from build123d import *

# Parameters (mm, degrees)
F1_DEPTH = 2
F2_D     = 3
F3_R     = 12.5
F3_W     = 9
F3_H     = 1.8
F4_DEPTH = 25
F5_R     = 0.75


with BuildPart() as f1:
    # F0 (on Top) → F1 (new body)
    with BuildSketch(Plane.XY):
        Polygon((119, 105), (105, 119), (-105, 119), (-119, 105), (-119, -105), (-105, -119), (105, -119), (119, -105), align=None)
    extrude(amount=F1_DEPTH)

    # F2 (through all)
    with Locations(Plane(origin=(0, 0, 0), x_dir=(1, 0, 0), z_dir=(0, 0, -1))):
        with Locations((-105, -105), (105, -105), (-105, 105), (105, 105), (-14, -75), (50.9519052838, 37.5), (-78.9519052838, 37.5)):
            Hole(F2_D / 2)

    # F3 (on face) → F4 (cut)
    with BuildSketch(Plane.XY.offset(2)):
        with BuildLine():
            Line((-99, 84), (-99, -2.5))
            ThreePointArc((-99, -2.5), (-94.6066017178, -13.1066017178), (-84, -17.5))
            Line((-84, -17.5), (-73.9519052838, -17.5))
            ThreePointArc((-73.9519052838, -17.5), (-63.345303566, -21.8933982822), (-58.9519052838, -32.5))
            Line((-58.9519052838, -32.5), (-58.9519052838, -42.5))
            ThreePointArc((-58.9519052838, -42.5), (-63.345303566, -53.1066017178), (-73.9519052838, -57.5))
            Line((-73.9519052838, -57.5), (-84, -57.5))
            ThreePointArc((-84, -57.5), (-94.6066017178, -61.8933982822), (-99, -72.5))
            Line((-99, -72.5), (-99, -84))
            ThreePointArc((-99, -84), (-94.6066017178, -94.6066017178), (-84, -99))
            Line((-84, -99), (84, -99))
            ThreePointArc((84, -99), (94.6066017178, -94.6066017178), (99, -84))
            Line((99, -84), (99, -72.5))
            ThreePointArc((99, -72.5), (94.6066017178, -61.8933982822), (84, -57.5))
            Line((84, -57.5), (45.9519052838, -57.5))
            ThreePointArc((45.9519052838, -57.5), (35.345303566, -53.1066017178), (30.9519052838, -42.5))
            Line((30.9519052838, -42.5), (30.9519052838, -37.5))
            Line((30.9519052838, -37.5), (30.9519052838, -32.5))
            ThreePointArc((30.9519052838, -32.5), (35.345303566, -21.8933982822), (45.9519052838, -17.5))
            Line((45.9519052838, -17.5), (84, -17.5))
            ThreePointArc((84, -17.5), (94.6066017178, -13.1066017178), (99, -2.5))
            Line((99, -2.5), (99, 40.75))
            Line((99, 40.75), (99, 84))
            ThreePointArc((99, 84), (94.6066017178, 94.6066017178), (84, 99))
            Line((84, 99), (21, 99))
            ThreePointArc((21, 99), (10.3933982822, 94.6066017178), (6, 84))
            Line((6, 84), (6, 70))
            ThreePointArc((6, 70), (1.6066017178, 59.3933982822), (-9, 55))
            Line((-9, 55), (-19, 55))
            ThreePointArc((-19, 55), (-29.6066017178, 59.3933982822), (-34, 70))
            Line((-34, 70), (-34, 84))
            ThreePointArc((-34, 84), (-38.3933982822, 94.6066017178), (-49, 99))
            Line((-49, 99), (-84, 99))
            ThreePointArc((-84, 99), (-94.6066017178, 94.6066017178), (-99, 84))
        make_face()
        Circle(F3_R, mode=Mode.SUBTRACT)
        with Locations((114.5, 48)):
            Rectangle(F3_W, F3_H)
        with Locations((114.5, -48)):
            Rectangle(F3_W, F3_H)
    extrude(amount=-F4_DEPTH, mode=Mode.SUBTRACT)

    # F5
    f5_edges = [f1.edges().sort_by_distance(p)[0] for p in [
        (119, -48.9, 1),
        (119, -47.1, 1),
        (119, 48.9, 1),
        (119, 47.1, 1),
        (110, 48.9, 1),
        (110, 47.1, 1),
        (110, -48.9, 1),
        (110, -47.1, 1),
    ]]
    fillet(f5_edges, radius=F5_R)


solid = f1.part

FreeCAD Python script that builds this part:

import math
import FreeCAD as App
import Part
import Sketcher
Q = App.Units.Quantity


def edges_at(feature, points):
    """Names of the edges that pass closest to the given points."""
    edges = feature.Shape.Edges
    near = lambda p: min(range(len(edges)), key=lambda i: edges[i].distToShape(Part.Vertex(*p))[0])
    return sorted({f"Edge{near(p) + 1}" for p in points})


def add_polygon(sketch, points):
    """Adds a closed chain of lines whose ends are joined by coincident constraints."""
    first, n = sketch.GeometryCount, len(points)
    for a, b in zip(points, points[1:] + points[:1]):
        sketch.addGeometry(Part.LineSegment(App.Vector(*a, 0), App.Vector(*b, 0)), False)
    for i in range(n):
        sketch.addConstraint(Sketcher.Constraint("Coincident", first + i, 2, first + (i + 1) % n, 1))

doc = App.newDocument("Part")
params = doc.addObject("Spreadsheet::Sheet", "Params")
for row, (alias, value) in enumerate([
    ("sketch1_width", "210 mm"),
    ("pad1_length", "2 mm"),
    ("sketch2_diameter", "3 mm"),
    ("hole_diameter", "3 mm"),
    ("sketch3_diameter", "25 mm"),
    ("sketch3_radius", "15 mm"),
    ("sketch3_width", "168 mm"),
    ("sketch3_width2", "63 mm"),
    ("sketch3_width3", "10 mm"),
    ("pocket1_length", "25 mm"),
    ("fillet_radius", "0.75 mm"),
], start=1):
    params.set(f"A{row}", alias)
    params.set(f"B{row}", "=" + value)
    params.setAlias(f"B{row}", alias)

body = doc.addObject("PartDesign::Body", "Body")
body.AllowCompound = True

sketch1 = doc.addObject("Sketcher::SketchObject", "Sketch")
body.addObject(sketch1)
sketch1.AttachmentSupport = (doc.XY_Plane, [""])
sketch1.MapMode = "FlatFace"
add_polygon(sketch1, [(119, 105), (105, 119), (-105, 119), (-119, 105), (-119, -105), (-105, -119), (105, -119), (119, -105)])
sketch1.addConstraint([
    Sketcher.Constraint("Horizontal", 1),
    Sketcher.Constraint("Vertical", 3),
    Sketcher.Constraint("Horizontal", 5),
    Sketcher.Constraint("Vertical", 7),
    Sketcher.Constraint("Symmetric", 0, 2, 4, 2, -1, 1),
    Sketcher.Constraint("Symmetric", 2, 2, 6, 2, -1, 1),
    Sketcher.Constraint("Perpendicular", 0, 2),
    Sketcher.Constraint("Perpendicular", 2, 4),
    Sketcher.Constraint("Perpendicular", 4, 6),
    Sketcher.Constraint("Horizontal", 3, 2, 6, 2),
    Sketcher.Constraint("Vertical", 1, 2, 4, 2),
    Sketcher.Constraint("Equal", 5, 3),
    Sketcher.Constraint("DistanceX", 1, 2, 1, 1, Q("210 mm")),
    Sketcher.Constraint("DistanceY", -1, 1, 0, 2, Q("119 mm")),
])
sketch1.setExpression("Constraints[20]", "Params.sketch1_width")
pad1 = doc.addObject("PartDesign::Pad", "Pad")
body.addObject(pad1)
pad1.Profile = sketch1
pad1.setExpression("Length", "Params.pad1_length")

sketch2 = doc.addObject("Sketcher::SketchObject", "Sketch001")
body.addObject(sketch2)
sketch2.AttachmentSupport = (doc.XY_Plane, [""])
sketch2.MapMode = "FlatFace"
sketch2.addGeometry([
    Part.Circle(App.Vector(-105, 105, 0), App.Vector(0, 0, 1), 1.5),
    Part.Circle(App.Vector(105, 105, 0), App.Vector(0, 0, 1), 1.5),
    Part.Circle(App.Vector(-105, -105, 0), App.Vector(0, 0, 1), 1.5),
    Part.Circle(App.Vector(105, -105, 0), App.Vector(0, 0, 1), 1.5),
    Part.Circle(App.Vector(-14, 75, 0), App.Vector(0, 0, 1), 1.5),
    Part.Circle(App.Vector(51, -37.5, 0), App.Vector(0, 0, 1), 1.5),
    Part.Circle(App.Vector(-79, -37.5, 0), App.Vector(0, 0, 1), 1.5),
], False)
sketch2.addConstraint([
    Sketcher.Constraint("Equal", 0, 1),
    Sketcher.Constraint("Equal", 1, 2),
    Sketcher.Constraint("Equal", 2, 3),
    Sketcher.Constraint("Equal", 3, 4),
    Sketcher.Constraint("Equal", 4, 5),
    Sketcher.Constraint("Equal", 5, 6),
    Sketcher.Constraint("Symmetric", 1, 3, 2, 3, -1, 1),
    Sketcher.Constraint("Symmetric", 0, 3, 3, 3, -1, 1),
    Sketcher.Constraint("Symmetric", 0, 3, 1, 3, -2),
    Sketcher.Constraint("Horizontal", 5, 3, 6, 3),
    Sketcher.Constraint("Diameter", 0, Q("3 mm")),
    Sketcher.Constraint("DistanceX", 0, 3, -1, 1, Q("105 mm")),
    Sketcher.Constraint("DistanceY", -1, 1, 0, 3, Q("105 mm")),
    Sketcher.Constraint("DistanceX", 4, 3, -1, 1, Q("14 mm")),
    Sketcher.Constraint("DistanceY", -1, 1, 4, 3, Q("75 mm")),
    Sketcher.Constraint("DistanceY", 5, 3, -1, 1, Q("37.5 mm")),
    Sketcher.Constraint("DistanceX", 6, 3, 5, 3, Q("129.903811 mm")),
    Sketcher.Constraint("DistanceX", -1, 1, 5, 3, Q("50.951905 mm")),
])
sketch2.setExpression("Constraints[10]", "Params.sketch2_diameter")
doc.recompute()
hole = doc.addObject("PartDesign::Hole", "Hole")
body.addObject(hole)
hole.Profile = sketch2
hole.ThreadType = "None"
hole.setExpression("Diameter", "Params.hole_diameter")
hole.DepthType = "ThroughAll"
hole.Reversed = True

sketch3 = doc.addObject("Sketcher::SketchObject", "Sketch002")
body.addObject(sketch3)
sketch3.AttachmentSupport = (doc.XY_Plane, [""])
sketch3.MapMode = "FlatFace"
sketch3.AttachmentOffset = App.Placement(App.Vector(0, 0, 2), App.Rotation())
sketch3.addGeometry(Part.LineSegment(App.Vector(-99, 84, 0), App.Vector(-99, -2.5, 0)), False)
sketch3.addGeometry(Part.ArcOfCircle(Part.Circle(App.Vector(-84, -2.5, 0), App.Vector(0, 0, 1), 15), math.radians(180), math.radians(270)), False)
sketch3.addGeometry(Part.LineSegment(App.Vector(-84, -17.5, 0), App.Vector(-74, -17.5, 0)), False)
sketch3.addGeometry(Part.ArcOfCircle(Part.Circle(App.Vector(-74, -32.5, 0), App.Vector(0, 0, 1), 15), math.radians(0), math.radians(90)), False)
sketch3.addGeometry(Part.LineSegment(App.Vector(-59, -32.5, 0), App.Vector(-59, -42.5, 0)), False)
sketch3.addGeometry(Part.ArcOfCircle(Part.Circle(App.Vector(-74, -42.5, 0), App.Vector(0, 0, 1), 15), math.radians(-90), math.radians(0)), False)
sketch3.addGeometry(Part.LineSegment(App.Vector(-74, -57.5, 0), App.Vector(-84, -57.5, 0)), False)
sketch3.addGeometry(Part.ArcOfCircle(Part.Circle(App.Vector(-84, -72.5, 0), App.Vector(0, 0, 1), 15), math.radians(90), math.radians(180)), False)
sketch3.addGeometry(Part.LineSegment(App.Vector(-99, -72.5, 0), App.Vector(-99, -84, 0)), False)
sketch3.addGeometry(Part.ArcOfCircle(Part.Circle(App.Vector(-84, -84, 0), App.Vector(0, 0, 1), 15), math.radians(180), math.radians(270)), False)
sketch3.addGeometry(Part.LineSegment(App.Vector(-84, -99, 0), App.Vector(84, -99, 0)), False)
sketch3.addGeometry(Part.ArcOfCircle(Part.Circle(App.Vector(84, -84, 0), App.Vector(0, 0, 1), 15), math.radians(-90), math.radians(0)), False)
sketch3.addGeometry(Part.LineSegment(App.Vector(99, -84, 0), App.Vector(99, -72.5, 0)), False)
sketch3.addGeometry(Part.ArcOfCircle(Part.Circle(App.Vector(84, -72.5, 0), App.Vector(0, 0, 1), 15), math.radians(0), math.radians(90)), False)
sketch3.addGeometry(Part.LineSegment(App.Vector(84, -57.5, 0), App.Vector(46, -57.5, 0)), False)
sketch3.addGeometry(Part.ArcOfCircle(Part.Circle(App.Vector(46, -42.5, 0), App.Vector(0, 0, 1), 15), math.radians(180), math.radians(270)), False)
sketch3.addGeometry(Part.LineSegment(App.Vector(31, -42.5, 0), App.Vector(31, -32.5, 0)), False)
sketch3.addGeometry(Part.ArcOfCircle(Part.Circle(App.Vector(46, -32.5, 0), App.Vector(0, 0, 1), 15), math.radians(90), math.radians(180)), False)
sketch3.addGeometry(Part.LineSegment(App.Vector(46, -17.5, 0), App.Vector(84, -17.5, 0)), False)
sketch3.addGeometry(Part.ArcOfCircle(Part.Circle(App.Vector(84, -2.5, 0), App.Vector(0, 0, 1), 15), math.radians(-90), math.radians(0)), False)
sketch3.addGeometry(Part.LineSegment(App.Vector(99, -2.5, 0), App.Vector(99, 84, 0)), False)
sketch3.addGeometry(Part.ArcOfCircle(Part.Circle(App.Vector(84, 84, 0), App.Vector(0, 0, 1), 15), math.radians(0), math.radians(90)), False)
sketch3.addGeometry(Part.LineSegment(App.Vector(84, 99, 0), App.Vector(21, 99, 0)), False)
sketch3.addGeometry(Part.ArcOfCircle(Part.Circle(App.Vector(21, 84, 0), App.Vector(0, 0, 1), 15), math.radians(90), math.radians(180)), False)
sketch3.addGeometry(Part.LineSegment(App.Vector(6, 84, 0), App.Vector(6, 70, 0)), False)
sketch3.addGeometry(Part.ArcOfCircle(Part.Circle(App.Vector(-9, 70, 0), App.Vector(0, 0, 1), 15), math.radians(-90), math.radians(0)), False)
sketch3.addGeometry(Part.LineSegment(App.Vector(-9, 55, 0), App.Vector(-19, 55, 0)), False)
sketch3.addGeometry(Part.ArcOfCircle(Part.Circle(App.Vector(-19, 70, 0), App.Vector(0, 0, 1), 15), math.radians(180), math.radians(270)), False)
sketch3.addGeometry(Part.LineSegment(App.Vector(-34, 70, 0), App.Vector(-34, 84, 0)), False)
sketch3.addGeometry(Part.ArcOfCircle(Part.Circle(App.Vector(-49, 84, 0), App.Vector(0, 0, 1), 15), math.radians(0), math.radians(90)), False)
sketch3.addGeometry(Part.LineSegment(App.Vector(-49, 99, 0), App.Vector(-84, 99, 0)), False)
sketch3.addGeometry(Part.ArcOfCircle(Part.Circle(App.Vector(-84, 84, 0), App.Vector(0, 0, 1), 15), math.radians(90), math.radians(180)), False)
sketch3.addGeometry(Part.Circle(App.Vector(0, 0, 0), App.Vector(0, 0, 1), 12.5), False)
add_polygon(sketch3, [(110, 48.9), (110, 47.1), (119, 47.1), (119, 48.9)])
add_polygon(sketch3, [(110, -47.1), (110, -48.9), (119, -48.9), (119, -47.1)])
sketch3.addConstraint([
    Sketcher.Constraint("Tangent", 0, 2, 1, 1),
    Sketcher.Constraint("Tangent", 1, 2, 2, 1),
    Sketcher.Constraint("Tangent", 2, 2, 3, 2),
    Sketcher.Constraint("Tangent", 3, 1, 4, 1),
    Sketcher.Constraint("Tangent", 4, 2, 5, 2),
    Sketcher.Constraint("Tangent", 5, 1, 6, 1),
    Sketcher.Constraint("Tangent", 6, 2, 7, 1),
    Sketcher.Constraint("Tangent", 7, 2, 8, 1),
    Sketcher.Constraint("Tangent", 8, 2, 9, 1),
    Sketcher.Constraint("Tangent", 9, 2, 10, 1),
    Sketcher.Constraint("Tangent", 10, 2, 11, 1),
    Sketcher.Constraint("Tangent", 11, 2, 12, 1),
    Sketcher.Constraint("Tangent", 12, 2, 13, 1),
    Sketcher.Constraint("Tangent", 13, 2, 14, 1),
    Sketcher.Constraint("Tangent", 14, 2, 15, 2),
    Sketcher.Constraint("Tangent", 15, 1, 16, 1),
    Sketcher.Constraint("Tangent", 16, 2, 17, 2),
    Sketcher.Constraint("Tangent", 17, 1, 18, 1),
    Sketcher.Constraint("Tangent", 18, 2, 19, 1),
    Sketcher.Constraint("Tangent", 19, 2, 20, 1),
    Sketcher.Constraint("Tangent", 20, 2, 21, 1),
    Sketcher.Constraint("Tangent", 21, 2, 22, 1),
    Sketcher.Constraint("Tangent", 22, 2, 23, 1),
    Sketcher.Constraint("Tangent", 23, 2, 24, 1),
    Sketcher.Constraint("Tangent", 24, 2, 25, 2),
    Sketcher.Constraint("Tangent", 25, 1, 26, 1),
    Sketcher.Constraint("Tangent", 26, 2, 27, 2),
    Sketcher.Constraint("Tangent", 27, 1, 28, 1),
    Sketcher.Constraint("Tangent", 28, 2, 29, 1),
    Sketcher.Constraint("Tangent", 29, 2, 30, 1),
    Sketcher.Constraint("Tangent", 30, 2, 31, 1),
    Sketcher.Constraint("Tangent", 31, 2, 0, 1),
    Sketcher.Constraint("Vertical", 0),
    Sketcher.Constraint("Horizontal", 2),
    Sketcher.Constraint("Vertical", 4),
    Sketcher.Constraint("Horizontal", 6),
    Sketcher.Constraint("Vertical", 8),
    Sketcher.Constraint("Horizontal", 10),
    Sketcher.Constraint("Vertical", 12),
    Sketcher.Constraint("Horizontal", 14),
    Sketcher.Constraint("Vertical", 16),
    Sketcher.Constraint("Horizontal", 18),
    Sketcher.Constraint("Vertical", 20),
    Sketcher.Constraint("Horizontal", 22),
    Sketcher.Constraint("Vertical", 24),
    Sketcher.Constraint("Horizontal", 26),
    Sketcher.Constraint("Vertical", 28),
    Sketcher.Constraint("Horizontal", 30),
    Sketcher.Constraint("Vertical", 33),
    Sketcher.Constraint("Horizontal", 34),
    Sketcher.Constraint("Vertical", 35),
    Sketcher.Constraint("Horizontal", 36),
    Sketcher.Constraint("Vertical", 37),
    Sketcher.Constraint("Horizontal", 38),
    Sketcher.Constraint("Vertical", 39),
    Sketcher.Constraint("Horizontal", 40),
    Sketcher.Constraint("Coincident", 32, 3, -1, 1),
    Sketcher.Constraint("Equal", 1, 3),
    Sketcher.Constraint("Equal", 3, 5),
    Sketcher.Constraint("Equal", 5, 7),
    Sketcher.Constraint("Equal", 7, 9),
    Sketcher.Constraint("Equal", 9, 11),
    Sketcher.Constraint("Equal", 11, 13),
    Sketcher.Constraint("Equal", 13, 15),
    Sketcher.Constraint("Equal", 15, 17),
    Sketcher.Constraint("Equal", 17, 19),
    Sketcher.Constraint("Equal", 19, 21),
    Sketcher.Constraint("Equal", 21, 23),
    Sketcher.Constraint("Equal", 23, 25),
    Sketcher.Constraint("Equal", 25, 27),
    Sketcher.Constraint("Equal", 27, 29),
    Sketcher.Constraint("Equal", 29, 31),
    Sketcher.Constraint("Symmetric", 9, 3, 21, 3, -1, 1),
    Sketcher.Constraint("Symmetric", 11, 3, 31, 3, -1, 1),
    Sketcher.Constraint("Symmetric", 7, 3, 13, 3, -2),
    Sketcher.Constraint("Symmetric", 36, 2, 37, 2, -1),
    Sketcher.Constraint("Symmetric", 34, 2, 39, 2, -1),
    Sketcher.Constraint("Horizontal", 3, 3, 17, 3),
    Sketcher.Constraint("Equal", 26, 4),
    Sketcher.Constraint("Diameter", 32, Q("25 mm")),
    Sketcher.Constraint("Radius", 1, Q("15 mm")),
    Sketcher.Constraint("DistanceX", 10, 1, 10, 2, Q("168 mm")),
    Sketcher.Constraint("DistanceX", 22, 2, 22, 1, Q("63 mm")),
    Sketcher.Constraint("DistanceX", 26, 2, 26, 1, Q("10 mm")),
    Sketcher.Constraint("DistanceX", 34, 1, 34, 2, Q("9 mm")),
    Sketcher.Constraint("DistanceY", 24, 2, 24, 1, Q("14 mm")),
    Sketcher.Constraint("DistanceY", 0, 2, 0, 1, Q("86.5 mm")),
    Sketcher.Constraint("DistanceY", 8, 2, 8, 1, Q("11.5 mm")),
    Sketcher.Constraint("DistanceY", 33, 2, 33, 1, Q("1.8 mm")),
    Sketcher.Constraint("DistanceX", -1, 1, 33, 2, Q("110 mm")),
    Sketcher.Constraint("DistanceY", -1, 1, 33, 2, Q("47.1 mm")),
    Sketcher.Constraint("DistanceX", 2, 1, 2, 2, Q("10.048095 mm")),
    Sketcher.Constraint("DistanceX", 14, 2, 14, 1, Q("38.048095 mm")),
])
sketch3.setExpression("Constraints[87]", "Params.sketch3_diameter")
sketch3.setExpression("Constraints[88]", "Params.sketch3_radius")
sketch3.setExpression("Constraints[89]", "Params.sketch3_width")
sketch3.setExpression("Constraints[90]", "Params.sketch3_width2")
sketch3.setExpression("Constraints[91]", "Params.sketch3_width3")
pocket1 = doc.addObject("PartDesign::Pocket", "Pocket")
body.addObject(pocket1)
pocket1.Profile = sketch3
pocket1.setExpression("Length", "Params.pocket1_length")
doc.recompute()

fillet = doc.addObject("PartDesign::Fillet", "Fillet")
body.addObject(fillet)
fillet.Base = (pocket1, edges_at(pocket1, [
    (119, -48.9, 1),
    (119, -47.1, 1),
    (119, 48.9, 1),
    (119, 47.1, 1),
    (110, 48.9, 1),
    (110, 47.1, 1),
    (110, -48.9, 1),
    (110, -47.1, 1),
]))
fillet.setExpression("Radius", "Params.fillet_radius")

doc.recompute()
